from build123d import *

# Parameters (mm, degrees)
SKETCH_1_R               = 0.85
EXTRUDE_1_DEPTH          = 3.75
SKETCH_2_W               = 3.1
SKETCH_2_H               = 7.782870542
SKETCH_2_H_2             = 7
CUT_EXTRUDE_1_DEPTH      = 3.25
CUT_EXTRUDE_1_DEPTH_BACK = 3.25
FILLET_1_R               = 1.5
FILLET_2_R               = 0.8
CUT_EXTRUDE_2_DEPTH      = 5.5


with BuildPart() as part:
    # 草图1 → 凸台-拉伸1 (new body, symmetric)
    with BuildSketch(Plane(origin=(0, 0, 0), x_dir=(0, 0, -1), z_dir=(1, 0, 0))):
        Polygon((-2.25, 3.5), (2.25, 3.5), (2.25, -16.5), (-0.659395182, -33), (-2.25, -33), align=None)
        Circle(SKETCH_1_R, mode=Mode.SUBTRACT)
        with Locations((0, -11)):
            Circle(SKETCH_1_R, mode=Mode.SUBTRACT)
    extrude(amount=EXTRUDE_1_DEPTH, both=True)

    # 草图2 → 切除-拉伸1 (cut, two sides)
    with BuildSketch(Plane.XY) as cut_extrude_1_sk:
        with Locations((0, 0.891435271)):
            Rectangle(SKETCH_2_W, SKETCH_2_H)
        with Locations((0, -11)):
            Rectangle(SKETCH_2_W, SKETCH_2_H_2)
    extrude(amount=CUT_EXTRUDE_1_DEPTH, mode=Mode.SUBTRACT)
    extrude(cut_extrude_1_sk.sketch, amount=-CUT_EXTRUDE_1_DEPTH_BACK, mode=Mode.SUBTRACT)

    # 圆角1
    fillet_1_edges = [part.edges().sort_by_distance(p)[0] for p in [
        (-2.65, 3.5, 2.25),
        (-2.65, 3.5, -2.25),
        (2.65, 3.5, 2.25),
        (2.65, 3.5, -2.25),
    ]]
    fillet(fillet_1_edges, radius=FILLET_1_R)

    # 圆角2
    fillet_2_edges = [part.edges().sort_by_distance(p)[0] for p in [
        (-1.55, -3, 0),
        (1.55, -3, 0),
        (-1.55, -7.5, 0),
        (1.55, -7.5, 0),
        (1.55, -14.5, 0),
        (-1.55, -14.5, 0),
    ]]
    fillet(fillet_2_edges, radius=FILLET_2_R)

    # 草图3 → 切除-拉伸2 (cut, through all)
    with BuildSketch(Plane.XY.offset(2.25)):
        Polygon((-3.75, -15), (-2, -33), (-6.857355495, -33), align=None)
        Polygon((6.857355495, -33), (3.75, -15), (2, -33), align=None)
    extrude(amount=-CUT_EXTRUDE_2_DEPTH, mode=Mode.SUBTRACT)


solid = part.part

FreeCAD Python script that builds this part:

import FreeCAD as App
import Part
import Sketcher
from FreeCAD import Vector
Q = App.Units.Quantity


def edges_at(feature, points):
    """Names of the edges that pass closest to the given points."""
    edges = feature.Shape.Edges
    near = lambda p: min(range(len(edges)), key=lambda i: edges[i].distToShape(Part.Vertex(*p))[0])
    return sorted({f"Edge{near(p) + 1}" for p in points})


def add_polygon(sketch, points):
    """Adds a closed chain of lines whose ends are joined by coincident constraints."""
    first, n = sketch.GeometryCount, len(points)
    for a, b in zip(points, points[1:] + points[:1]):
        sketch.addGeometry(Part.LineSegment(App.Vector(*a, 0), App.Vector(*b, 0)), False)
    for i in range(n):
        sketch.addConstraint(Sketcher.Constraint("Coincident", first + i, 2, first + (i + 1) % n, 1))

doc = App.newDocument("Part")
params = doc.addObject("Spreadsheet::Sheet", "Params")
for row, (alias, value) in enumerate([
    ("sketch1_diameter", "1.7 mm"),
    ("sketch1_width", "20 mm"),
    ("sketch1_width2", "36.5 mm"),
    ("sketch1_height", "4.5 mm"),
    ("pad1_length", "7.5 mm"),
    ("sketch2_height", "7 mm"),
    ("sketch2_width", "3.1 mm"),
    ("fillet_radius", "1.5 mm"),
    ("fillet2_radius", "0.8 mm"),
], start=1):
    params.set(f"A{row}", alias)
    params.set(f"B{row}", "=" + value)
    params.setAlias(f"B{row}", alias)

body = doc.addObject("PartDesign::Body", "Body")

sketch1 = body.newObject("Sketcher::SketchObject", "Sketch")
sketch1.AttachmentSupport = (doc.getObject("YZ_Plane"), [""])
sketch1.MapMode = "FlatFace"
add_polygon(sketch1, [(3.5, -2.2), (3.5, 2.2), (-33, 2.2), (-33, 0.7), (-16.5, -2.2)])
sketch1.addGeometry(Part.Circle(Vector(-11, 0, 0), Vector(0, 0, 1), 0.8), False)
sketch1.addGeometry(Part.Circle(Vector(0, 0, 0), Vector(0, 0, 1), 0.8), False)
sketch1.addConstraint(Sketcher.Constraint("Vertical", 0))
sketch1.addConstraint(Sketcher.Constraint("Horizontal", 1))
sketch1.addConstraint(Sketcher.Constraint("Vertical", 2))
sketch1.addConstraint(Sketcher.Constraint("Horizontal", 4))
sketch1.addConstraint(Sketcher.Constraint("Coincident", 6, 3, -1, 1))
sketch1.addConstraint(Sketcher.Constraint("Equal", 5, 6))
sketch1.addConstraint(Sketcher.Constraint("PointOnObject", 5, 3, -1))
sketch1.addConstraint(Sketcher.Constraint("Diameter", 5, Q("1.7 mm")))
sketch1.addConstraint(Sketcher.Constraint("DistanceX", 4, 1, 4, 2, Q("20 mm")))
sketch1.addConstraint(Sketcher.Constraint("Angle", 3, Q("-10 deg")))
sketch1.addConstraint(Sketcher.Constraint("DistanceX", 1, 2, 1, 1, Q("36.5 mm")))
sketch1.addConstraint(Sketcher.Constraint("DistanceY", 0, 1, 0, 2, Q("4.5 mm")))
sketch1.addConstraint(Sketcher.Constraint("DistanceX", 5, 3, -1, 1, Q("11 mm")))
sketch1.addConstraint(Sketcher.Constraint("DistanceX", 1, 2, -1, 1, Q("33 mm")))
sketch1.addConstraint(Sketcher.Constraint("DistanceY", -1, 1, 0, 2, Q("2.25 mm")))
sketch1.setExpression("Constraints[12]", "Params.sketch1_diameter")
sketch1.setExpression("Constraints[13]", "Params.sketch1_width")
sketch1.setExpression("Constraints[15]", "Params.sketch1_width2")
sketch1.setExpression("Constraints[16]", "Params.sketch1_height")
pad1 = body.newObject("PartDesign::Pad", "Pad")
pad1.Profile = sketch1
pad1.setExpression("Length", "Params.pad1_length")
pad1.Midplane = True

sketch2 = body.newObject("Sketcher::SketchObject", "Sketch001")
sketch2.AttachmentSupport = (doc.getObject("XY_Plane"), [""])
sketch2.MapMode = "FlatFace"
add_polygon(sketch2, [(-1.6, 4.8), (-1.6, -3), (1.6, -3), (1.6, 4.8)])
add_polygon(sketch2, [(-1.6, -7.5), (-1.6, -14.5), (1.6, -14.5), (1.6, -7.5)])
sketch2.addConstraint(Sketcher.Constraint("Vertical", 0))
sketch2.addConstraint(Sketcher.Constraint("Horizontal", 1))
sketch2.addConstraint(Sketcher.Constraint("Vertical", 2))
sketch2.addConstraint(Sketcher.Constraint("Horizontal", 3))
sketch2.addConstraint(Sketcher.Constraint("Vertical", 4))
sketch2.addConstraint(Sketcher.Constraint("Horizontal", 5))
sketch2.addConstraint(Sketcher.Constraint("Vertical", 6))
sketch2.addConstraint(Sketcher.Constraint("Horizontal", 7))
sketch2.addConstraint(Sketcher.Constraint("Vertical", 3, 2, 4, 2))
sketch2.addConstraint(Sketcher.Constraint("Vertical", 2, 2, 5, 2))
sketch2.addConstraint(Sketcher.Constraint("DistanceY", 4, 2, 4, 1, Q("7 mm")))
sketch2.addConstraint(Sketcher.Constraint("DistanceX", 1, 1, 1, 2, Q("3.1 mm")))
sketch2.addConstraint(Sketcher.Constraint("DistanceY", 0, 2, -1, 1, Q("3 mm")))
sketch2.addConstraint(Sketcher.Constraint("DistanceY", 4, 2, -1, 1, Q("14.5 mm")))
sketch2.addConstraint(Sketcher.Constraint("DistanceX", 0, 2, -1, 1, Q("1.55 mm")))
sketch2.addConstraint(Sketcher.Constraint("DistanceY", 0, 2, 0, 1, Q("7.782871 mm")))
sketch2.setExpression("Constraints[18]", "Params.sketch2_height")
sketch2.setExpression("Constraints[19]", "Params.sketch2_width")
pocket1 = body.newObject("PartDesign::Pocket", "Pocket")
pocket1.Profile = sketch2
pocket1.Type = "ThroughAll"
pocket1.Midplane = True
doc.recompute()

fillet = body.newObject("PartDesign::Fillet", "Fillet")
fillet.Base = (pocket1, edges_at(pocket1, [
    (-2.65, 3.5, 2.25),
    (-2.65, 3.5, -2.25),
    (2.65, 3.5, 2.25),
    (2.65, 3.5, -2.25),
]))
fillet.setExpression("Radius", "Params.fillet_radius")
doc.recompute()

fillet2 = body.newObject("PartDesign::Fillet", "Fillet001")
fillet2.Base = (fillet, edges_at(fillet, [
    (-1.55, -3, 0),
    (1.55, -3, 0),
    (-1.55, -7.5, 0),
    (1.55, -7.5, 0),
    (1.55, -14.5, 0),
    (-1.55, -14.5, 0),
]))
fillet2.setExpression("Radius", "Params.fillet2_radius")

sketch3 = body.newObject("Sketcher::SketchObject", "Sketch002")
sketch3.AttachmentSupport = (doc.getObject("XY_Plane"), [""])
sketch3.MapMode = "FlatFace"
sketch3.AttachmentOffset = App.Placement(Vector(0, 0, 2.25), App.Rotation())
add_polygon(sketch3, [(-2, -33), (-3.8, -15), (-6.9, -33)])
add_polygon(sketch3, [(6.9, -33), (3.8, -15), (2, -33)])
sketch3.addConstraint(Sketcher.Constraint("Horizontal", 2))
sketch3.addConstraint(Sketcher.Constraint("Horizontal", 5))
sketch3.addConstraint(Sketcher.Constraint("Symmetric", 0, 2, 3, 2, -2))
sketch3.addConstraint(Sketcher.Constraint("Symmetric", 2, 2, 4, 2, -2))
sketch3.addConstraint(Sketcher.Constraint("Equal", 2, 5))
sketch3.addConstraint(Sketcher.Constraint("DistanceY", 0, 2, -1, 1, Q("15 mm")))
sketch3.addConstraint(Sketcher.Constraint("DistanceY", 1, 2, -1, 1, Q("33 mm")))
sketch3.addConstraint(Sketcher.Constraint("DistanceX", 2, 2, -1, 1, Q("2 mm")))
sketch3.addConstraint(Sketcher.Constraint("DistanceX", 0, 2, 3, 2, Q("7.5 mm")))
sketch3.addConstraint(Sketcher.Constraint("DistanceX", 2, 1, 2, 2, Q("4.857355 mm")))
pocket2 = body.newObject("PartDesign::Pocket", "Pocket001")
pocket2.Profile = sketch3
pocket2.Type = "ThroughAll"

doc.recompute()
